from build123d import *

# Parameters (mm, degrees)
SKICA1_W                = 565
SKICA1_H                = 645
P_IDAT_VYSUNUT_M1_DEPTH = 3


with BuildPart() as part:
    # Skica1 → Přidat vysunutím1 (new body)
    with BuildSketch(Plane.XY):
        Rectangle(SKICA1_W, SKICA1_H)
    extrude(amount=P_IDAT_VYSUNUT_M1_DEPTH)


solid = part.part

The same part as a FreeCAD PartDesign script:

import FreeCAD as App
import Part
import Sketcher
from FreeCAD import Vector

doc = App.newDocument("Part")
body = doc.addObject("PartDesign::Body", "Body")

sketch1 = body.newObject("Sketcher::SketchObject", "Sketch")
sketch1.AttachmentSupport = (doc.getObject("XY_Plane"), [""])
sketch1.MapMode = "FlatFace"
sketch1.addGeometry(Part.LineSegment(Vector(-282, 322, 0), Vector(-282, -322, 0)), False)
sketch1.addGeometry(Part.LineSegment(Vector(-282, -322, 0), Vector(282, -322, 0)), False)
sketch1.addGeometry(Part.LineSegment(Vector(282, -322, 0), Vector(282, 322, 0)), False)
sketch1.addGeometry(Part.LineSegment(Vector(282, 322, 0), Vector(-282, 322, 0)), False)
sketch1.addConstraint(Sketcher.Constraint("Coincident", 0, 2, 1, 1))
sketch1.addConstraint(Sketcher.Constraint("Coincident", 1, 2, 2, 1))
sketch1.addConstraint(Sketcher.Constraint("Coincident", 2, 2, 3, 1))
sketch1.addConstraint(Sketcher.Constraint("Coincident", 3, 2, 0, 1))
sketch1.addConstraint(Sketcher.Constraint("Vertical", 0))
sketch1.addConstraint(Sketcher.Constraint("Horizontal", 1))
sketch1.addConstraint(Sketcher.Constraint("Vertical", 2))
sketch1.addConstraint(Sketcher.Constraint("Horizontal", 3))
sketch1.addConstraint(Sketcher.Constraint("Symmetric", 0, 2, 2, 2, -1, 1))
sketch1.addConstraint(Sketcher.Constraint("DistanceX", 1, 1, 1, 2, 565.0))
sketch1.addConstraint(Sketcher.Constraint("DistanceY", 0, 2, 0, 1, 645.0))
pad1 = body.newObject("PartDesign::Pad", "Pad")
pad1.Profile = sketch1
pad1.Length = 3

doc.recompute()
